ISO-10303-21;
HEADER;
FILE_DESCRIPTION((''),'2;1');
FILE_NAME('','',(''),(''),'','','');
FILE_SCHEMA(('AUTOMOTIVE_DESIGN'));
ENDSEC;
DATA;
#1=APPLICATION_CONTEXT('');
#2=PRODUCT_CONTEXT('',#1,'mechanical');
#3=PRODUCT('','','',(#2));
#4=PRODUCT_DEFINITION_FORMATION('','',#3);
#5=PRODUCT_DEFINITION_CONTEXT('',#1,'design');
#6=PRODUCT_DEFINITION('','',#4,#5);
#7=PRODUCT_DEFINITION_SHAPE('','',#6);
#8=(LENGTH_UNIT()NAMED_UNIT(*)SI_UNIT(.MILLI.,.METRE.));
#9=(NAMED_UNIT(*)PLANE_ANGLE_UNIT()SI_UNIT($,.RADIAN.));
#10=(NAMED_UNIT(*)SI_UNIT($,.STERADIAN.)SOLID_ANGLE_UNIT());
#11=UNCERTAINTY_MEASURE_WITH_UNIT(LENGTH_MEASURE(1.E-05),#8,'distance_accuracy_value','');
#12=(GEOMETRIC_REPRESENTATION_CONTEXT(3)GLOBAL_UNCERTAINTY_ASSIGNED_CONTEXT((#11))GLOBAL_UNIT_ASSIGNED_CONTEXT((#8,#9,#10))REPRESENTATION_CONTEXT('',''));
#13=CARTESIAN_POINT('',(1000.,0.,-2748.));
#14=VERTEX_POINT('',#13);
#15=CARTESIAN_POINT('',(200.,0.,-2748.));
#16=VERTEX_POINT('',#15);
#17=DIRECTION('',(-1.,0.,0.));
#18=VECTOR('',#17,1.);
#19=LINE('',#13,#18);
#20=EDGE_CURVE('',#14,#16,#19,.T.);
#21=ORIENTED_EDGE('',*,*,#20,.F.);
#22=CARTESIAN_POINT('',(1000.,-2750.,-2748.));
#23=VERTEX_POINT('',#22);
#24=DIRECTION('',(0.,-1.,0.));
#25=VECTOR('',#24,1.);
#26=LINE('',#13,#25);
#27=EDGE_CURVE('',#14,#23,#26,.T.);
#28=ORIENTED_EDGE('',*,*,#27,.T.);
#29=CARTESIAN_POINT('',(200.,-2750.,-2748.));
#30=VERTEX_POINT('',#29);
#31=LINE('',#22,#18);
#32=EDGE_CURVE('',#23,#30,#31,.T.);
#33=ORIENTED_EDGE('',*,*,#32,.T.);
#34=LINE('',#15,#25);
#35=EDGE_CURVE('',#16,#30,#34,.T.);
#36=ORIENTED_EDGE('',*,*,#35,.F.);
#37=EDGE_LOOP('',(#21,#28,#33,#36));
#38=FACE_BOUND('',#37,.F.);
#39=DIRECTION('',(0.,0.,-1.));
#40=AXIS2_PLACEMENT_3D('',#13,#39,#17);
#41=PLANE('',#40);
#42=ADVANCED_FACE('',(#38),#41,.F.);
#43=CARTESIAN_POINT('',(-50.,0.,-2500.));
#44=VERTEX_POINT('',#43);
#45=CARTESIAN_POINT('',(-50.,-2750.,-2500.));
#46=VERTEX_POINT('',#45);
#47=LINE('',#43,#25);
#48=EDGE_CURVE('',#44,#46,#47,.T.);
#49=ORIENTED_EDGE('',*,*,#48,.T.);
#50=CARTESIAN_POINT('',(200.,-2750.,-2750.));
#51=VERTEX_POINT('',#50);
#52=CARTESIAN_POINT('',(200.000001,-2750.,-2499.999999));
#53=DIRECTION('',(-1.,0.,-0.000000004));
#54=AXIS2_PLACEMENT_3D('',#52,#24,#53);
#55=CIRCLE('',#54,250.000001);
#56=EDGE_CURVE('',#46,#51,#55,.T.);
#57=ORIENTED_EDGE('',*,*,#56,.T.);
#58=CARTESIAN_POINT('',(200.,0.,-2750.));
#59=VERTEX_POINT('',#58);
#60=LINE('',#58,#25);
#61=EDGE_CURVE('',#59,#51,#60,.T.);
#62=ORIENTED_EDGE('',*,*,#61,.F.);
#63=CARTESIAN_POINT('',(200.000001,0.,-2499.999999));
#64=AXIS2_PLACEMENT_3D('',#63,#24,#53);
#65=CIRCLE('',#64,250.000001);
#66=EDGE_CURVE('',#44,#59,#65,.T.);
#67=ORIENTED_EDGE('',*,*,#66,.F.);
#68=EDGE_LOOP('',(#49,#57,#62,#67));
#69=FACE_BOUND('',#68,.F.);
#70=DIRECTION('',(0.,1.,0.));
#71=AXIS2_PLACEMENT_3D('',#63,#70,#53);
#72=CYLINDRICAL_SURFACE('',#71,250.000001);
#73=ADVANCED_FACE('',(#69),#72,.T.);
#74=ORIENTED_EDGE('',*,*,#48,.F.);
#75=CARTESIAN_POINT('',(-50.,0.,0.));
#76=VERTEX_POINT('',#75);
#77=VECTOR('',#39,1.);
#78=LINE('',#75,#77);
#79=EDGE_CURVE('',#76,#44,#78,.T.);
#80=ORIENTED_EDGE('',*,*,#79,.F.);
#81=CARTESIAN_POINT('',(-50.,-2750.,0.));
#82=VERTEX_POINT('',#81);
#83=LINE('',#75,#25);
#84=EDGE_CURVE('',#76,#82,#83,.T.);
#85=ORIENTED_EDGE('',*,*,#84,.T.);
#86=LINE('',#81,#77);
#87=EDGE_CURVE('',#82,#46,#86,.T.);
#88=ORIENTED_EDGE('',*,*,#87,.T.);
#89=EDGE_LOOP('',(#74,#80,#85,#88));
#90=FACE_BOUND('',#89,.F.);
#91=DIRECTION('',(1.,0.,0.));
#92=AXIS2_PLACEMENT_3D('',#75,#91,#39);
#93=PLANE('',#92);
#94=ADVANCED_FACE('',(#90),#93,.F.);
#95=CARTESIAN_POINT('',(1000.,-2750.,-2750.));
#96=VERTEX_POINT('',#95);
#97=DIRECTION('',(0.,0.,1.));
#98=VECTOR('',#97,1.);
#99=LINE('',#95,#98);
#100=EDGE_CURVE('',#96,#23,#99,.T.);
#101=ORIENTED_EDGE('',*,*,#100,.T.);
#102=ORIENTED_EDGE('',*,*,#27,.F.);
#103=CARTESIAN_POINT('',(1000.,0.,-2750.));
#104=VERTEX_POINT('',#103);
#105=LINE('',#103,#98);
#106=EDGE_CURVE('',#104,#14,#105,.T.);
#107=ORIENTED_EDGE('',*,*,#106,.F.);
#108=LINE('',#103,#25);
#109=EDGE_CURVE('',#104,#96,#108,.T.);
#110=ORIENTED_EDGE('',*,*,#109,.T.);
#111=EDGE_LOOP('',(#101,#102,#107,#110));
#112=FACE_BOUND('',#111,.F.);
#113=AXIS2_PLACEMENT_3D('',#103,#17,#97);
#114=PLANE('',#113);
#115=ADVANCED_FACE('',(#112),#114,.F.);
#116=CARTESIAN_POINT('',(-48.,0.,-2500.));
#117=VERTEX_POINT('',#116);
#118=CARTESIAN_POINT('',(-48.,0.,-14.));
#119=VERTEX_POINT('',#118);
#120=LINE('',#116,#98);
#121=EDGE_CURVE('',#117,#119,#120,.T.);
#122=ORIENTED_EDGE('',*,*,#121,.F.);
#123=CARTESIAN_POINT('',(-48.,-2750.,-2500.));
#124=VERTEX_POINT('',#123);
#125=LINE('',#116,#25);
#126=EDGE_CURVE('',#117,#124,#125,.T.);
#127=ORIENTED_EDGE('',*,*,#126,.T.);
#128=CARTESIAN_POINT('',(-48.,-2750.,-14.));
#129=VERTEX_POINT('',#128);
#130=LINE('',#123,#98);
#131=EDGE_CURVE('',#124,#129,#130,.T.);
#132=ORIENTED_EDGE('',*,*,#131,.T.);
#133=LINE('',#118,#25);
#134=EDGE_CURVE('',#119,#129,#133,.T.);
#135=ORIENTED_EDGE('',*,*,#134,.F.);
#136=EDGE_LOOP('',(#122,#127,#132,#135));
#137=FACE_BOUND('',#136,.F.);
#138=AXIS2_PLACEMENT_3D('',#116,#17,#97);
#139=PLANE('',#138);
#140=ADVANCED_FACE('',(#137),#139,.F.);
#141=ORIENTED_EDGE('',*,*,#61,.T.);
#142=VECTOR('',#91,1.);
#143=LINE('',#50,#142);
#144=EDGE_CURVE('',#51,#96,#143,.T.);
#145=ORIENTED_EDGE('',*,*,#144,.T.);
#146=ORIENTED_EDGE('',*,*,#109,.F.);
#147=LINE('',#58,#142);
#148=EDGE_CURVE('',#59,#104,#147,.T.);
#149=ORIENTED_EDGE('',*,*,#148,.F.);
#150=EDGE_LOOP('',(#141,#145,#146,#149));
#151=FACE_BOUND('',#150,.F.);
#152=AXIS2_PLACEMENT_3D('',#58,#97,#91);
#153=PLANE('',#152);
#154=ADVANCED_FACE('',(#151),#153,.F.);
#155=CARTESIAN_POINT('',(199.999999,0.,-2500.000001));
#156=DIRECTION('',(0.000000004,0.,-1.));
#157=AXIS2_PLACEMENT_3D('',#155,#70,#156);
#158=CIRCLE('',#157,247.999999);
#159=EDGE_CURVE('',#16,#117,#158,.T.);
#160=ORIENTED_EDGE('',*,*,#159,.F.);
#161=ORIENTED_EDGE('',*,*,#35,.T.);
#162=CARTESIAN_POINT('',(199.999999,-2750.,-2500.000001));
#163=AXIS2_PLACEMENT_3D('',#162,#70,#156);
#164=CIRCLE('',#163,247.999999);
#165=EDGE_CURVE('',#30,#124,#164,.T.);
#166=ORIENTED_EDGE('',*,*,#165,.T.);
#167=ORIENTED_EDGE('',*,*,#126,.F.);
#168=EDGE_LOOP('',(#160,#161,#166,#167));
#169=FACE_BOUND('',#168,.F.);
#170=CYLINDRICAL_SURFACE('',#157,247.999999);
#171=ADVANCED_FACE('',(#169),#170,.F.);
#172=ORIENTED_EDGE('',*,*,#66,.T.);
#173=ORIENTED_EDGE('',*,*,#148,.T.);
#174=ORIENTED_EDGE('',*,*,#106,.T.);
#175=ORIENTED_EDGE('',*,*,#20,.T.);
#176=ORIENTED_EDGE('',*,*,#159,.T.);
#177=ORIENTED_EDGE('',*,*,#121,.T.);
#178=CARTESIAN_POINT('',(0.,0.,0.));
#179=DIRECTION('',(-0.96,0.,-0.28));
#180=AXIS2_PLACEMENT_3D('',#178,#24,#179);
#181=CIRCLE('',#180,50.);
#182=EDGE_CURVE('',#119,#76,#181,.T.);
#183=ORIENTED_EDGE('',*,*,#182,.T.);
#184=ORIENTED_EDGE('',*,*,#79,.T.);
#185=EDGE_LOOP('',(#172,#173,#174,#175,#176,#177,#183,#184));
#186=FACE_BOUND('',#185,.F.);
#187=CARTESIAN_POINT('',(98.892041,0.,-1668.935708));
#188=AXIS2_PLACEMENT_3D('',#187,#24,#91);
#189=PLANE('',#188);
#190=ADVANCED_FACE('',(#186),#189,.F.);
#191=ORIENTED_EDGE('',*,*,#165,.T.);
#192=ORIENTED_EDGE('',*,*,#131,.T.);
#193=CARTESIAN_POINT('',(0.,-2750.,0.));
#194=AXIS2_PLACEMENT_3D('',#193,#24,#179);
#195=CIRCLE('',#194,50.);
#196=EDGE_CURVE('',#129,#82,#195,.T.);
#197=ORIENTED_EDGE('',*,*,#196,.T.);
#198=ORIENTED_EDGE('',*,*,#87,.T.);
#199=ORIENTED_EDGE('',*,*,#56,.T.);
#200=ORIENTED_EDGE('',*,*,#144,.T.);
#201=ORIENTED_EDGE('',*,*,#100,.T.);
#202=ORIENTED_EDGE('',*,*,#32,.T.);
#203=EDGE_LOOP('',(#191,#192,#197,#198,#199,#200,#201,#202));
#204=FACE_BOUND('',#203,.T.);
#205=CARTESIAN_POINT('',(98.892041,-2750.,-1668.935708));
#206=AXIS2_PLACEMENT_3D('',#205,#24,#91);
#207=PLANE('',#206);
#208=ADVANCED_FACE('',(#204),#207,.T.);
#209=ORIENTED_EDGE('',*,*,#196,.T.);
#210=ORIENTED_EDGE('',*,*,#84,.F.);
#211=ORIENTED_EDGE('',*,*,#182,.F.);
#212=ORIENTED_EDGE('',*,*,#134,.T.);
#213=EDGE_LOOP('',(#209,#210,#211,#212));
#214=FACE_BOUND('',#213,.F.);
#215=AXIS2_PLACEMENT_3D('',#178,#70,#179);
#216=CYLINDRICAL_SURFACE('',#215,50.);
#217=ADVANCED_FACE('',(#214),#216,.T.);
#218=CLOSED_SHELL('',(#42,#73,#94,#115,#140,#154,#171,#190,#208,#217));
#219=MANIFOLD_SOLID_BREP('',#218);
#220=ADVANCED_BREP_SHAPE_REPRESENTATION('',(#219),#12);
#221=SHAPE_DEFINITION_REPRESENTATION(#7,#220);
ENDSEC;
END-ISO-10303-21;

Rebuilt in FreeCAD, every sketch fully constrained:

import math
import FreeCAD as App
import Part
import Sketcher
from FreeCAD import Vector

doc = App.newDocument("Part")
params = doc.addObject("Spreadsheet::Sheet", "Params")
for row, (alias, value) in enumerate([
    ("sketch1_radius", "50 mm"),
    ("sketch1_radius2", "250.000001 mm"),
    ("sketch1_radius3", "247.999999 mm"),
    ("sketch1_width", "800 mm"),
    ("sketch1_height", "2486 mm"),
    ("pad1_length", "2750 mm"),
], start=1):
    params.set(f"A{row}", alias)
    params.set(f"B{row}", "=" + value)
    params.setAlias(f"B{row}", alias)

body = doc.addObject("PartDesign::Body", "Body")

# Sketch on XZ plane
sketch1 = doc.addObject("Sketcher::SketchObject", "Sketch")
body.addObject(sketch1)
sketch1.AttachmentSupport = (doc.XZ_Plane, [""])
sketch1.MapMode = "FlatFace"
sketch1.addGeometry([
    Part.LineSegment(Vector(-48, -2500, 0), Vector(-48, -14, 0)),  # 0
    Part.ArcOfCircle(Part.Circle(Vector(0, 0, 0), Vector(0, 0, 1), 50), math.radians(-164), math.radians(180)),  # 1
    Part.LineSegment(Vector(-50, 0, 0), Vector(-50, -2500, 0)),  # 2
    Part.ArcOfCircle(Part.Circle(Vector(200, -2500, 0), Vector(0, 0, 1), 250), math.radians(-180), math.radians(-90)),  # 3
    Part.LineSegment(Vector(200, -2750, 0), Vector(1000, -2750, 0)),  # 4
    Part.LineSegment(Vector(1000, -2750, 0), Vector(1000, -2748, 0)),  # 5
    Part.LineSegment(Vector(1000, -2748, 0), Vector(200, -2748, 0)),  # 6
    Part.ArcOfCircle(Part.Circle(Vector(200, -2500, 0), Vector(0, 0, 1), 248), math.radians(180), math.radians(270)),  # 7
], False)
sketch1.addConstraint([
    Sketcher.Constraint("Coincident", 0, 2, 1, 1),
    Sketcher.Constraint("Tangent", 1, 2, 2, 1),
    Sketcher.Constraint("Tangent", 2, 2, 3, 1),
    Sketcher.Constraint("Tangent", 3, 2, 4, 1),
    Sketcher.Constraint("Coincident", 4, 2, 5, 1),
    Sketcher.Constraint("Coincident", 5, 2, 6, 1),
    Sketcher.Constraint("Tangent", 6, 2, 7, 2),
    Sketcher.Constraint("Tangent", 7, 1, 0, 1),
    Sketcher.Constraint("Vertical", 0),
    Sketcher.Constraint("Vertical", 2),
    Sketcher.Constraint("Horizontal", 4),
    Sketcher.Constraint("Vertical", 5),
    Sketcher.Constraint("Horizontal", 6),
    Sketcher.Constraint("Coincident", 1, 3, -1, 1),
    Sketcher.Constraint("Coincident", 7, 3, 3, 3),
    Sketcher.Constraint("Radius", 1, 50.0),
    Sketcher.Constraint("Radius", 3, 250.000001),
    Sketcher.Constraint("Radius", 7, 247.999999),
    Sketcher.Constraint("DistanceX", 4, 1, 4, 2, 800.0),
    Sketcher.Constraint("DistanceY", 0, 1, 0, 2, 2486.0),
])
sketch1.setExpression("Constraints[15]", "Params.sketch1_radius")
sketch1.setExpression("Constraints[16]", "Params.sketch1_radius2")
sketch1.setExpression("Constraints[17]", "Params.sketch1_radius3")
sketch1.setExpression("Constraints[18]", "Params.sketch1_width")
sketch1.setExpression("Constraints[19]", "Params.sketch1_height")
pad1 = doc.addObject("PartDesign::Pad", "Pad")
body.addObject(pad1)
pad1.Profile = sketch1
pad1.setExpression("Length", "Params.pad1_length")

doc.recompute()
